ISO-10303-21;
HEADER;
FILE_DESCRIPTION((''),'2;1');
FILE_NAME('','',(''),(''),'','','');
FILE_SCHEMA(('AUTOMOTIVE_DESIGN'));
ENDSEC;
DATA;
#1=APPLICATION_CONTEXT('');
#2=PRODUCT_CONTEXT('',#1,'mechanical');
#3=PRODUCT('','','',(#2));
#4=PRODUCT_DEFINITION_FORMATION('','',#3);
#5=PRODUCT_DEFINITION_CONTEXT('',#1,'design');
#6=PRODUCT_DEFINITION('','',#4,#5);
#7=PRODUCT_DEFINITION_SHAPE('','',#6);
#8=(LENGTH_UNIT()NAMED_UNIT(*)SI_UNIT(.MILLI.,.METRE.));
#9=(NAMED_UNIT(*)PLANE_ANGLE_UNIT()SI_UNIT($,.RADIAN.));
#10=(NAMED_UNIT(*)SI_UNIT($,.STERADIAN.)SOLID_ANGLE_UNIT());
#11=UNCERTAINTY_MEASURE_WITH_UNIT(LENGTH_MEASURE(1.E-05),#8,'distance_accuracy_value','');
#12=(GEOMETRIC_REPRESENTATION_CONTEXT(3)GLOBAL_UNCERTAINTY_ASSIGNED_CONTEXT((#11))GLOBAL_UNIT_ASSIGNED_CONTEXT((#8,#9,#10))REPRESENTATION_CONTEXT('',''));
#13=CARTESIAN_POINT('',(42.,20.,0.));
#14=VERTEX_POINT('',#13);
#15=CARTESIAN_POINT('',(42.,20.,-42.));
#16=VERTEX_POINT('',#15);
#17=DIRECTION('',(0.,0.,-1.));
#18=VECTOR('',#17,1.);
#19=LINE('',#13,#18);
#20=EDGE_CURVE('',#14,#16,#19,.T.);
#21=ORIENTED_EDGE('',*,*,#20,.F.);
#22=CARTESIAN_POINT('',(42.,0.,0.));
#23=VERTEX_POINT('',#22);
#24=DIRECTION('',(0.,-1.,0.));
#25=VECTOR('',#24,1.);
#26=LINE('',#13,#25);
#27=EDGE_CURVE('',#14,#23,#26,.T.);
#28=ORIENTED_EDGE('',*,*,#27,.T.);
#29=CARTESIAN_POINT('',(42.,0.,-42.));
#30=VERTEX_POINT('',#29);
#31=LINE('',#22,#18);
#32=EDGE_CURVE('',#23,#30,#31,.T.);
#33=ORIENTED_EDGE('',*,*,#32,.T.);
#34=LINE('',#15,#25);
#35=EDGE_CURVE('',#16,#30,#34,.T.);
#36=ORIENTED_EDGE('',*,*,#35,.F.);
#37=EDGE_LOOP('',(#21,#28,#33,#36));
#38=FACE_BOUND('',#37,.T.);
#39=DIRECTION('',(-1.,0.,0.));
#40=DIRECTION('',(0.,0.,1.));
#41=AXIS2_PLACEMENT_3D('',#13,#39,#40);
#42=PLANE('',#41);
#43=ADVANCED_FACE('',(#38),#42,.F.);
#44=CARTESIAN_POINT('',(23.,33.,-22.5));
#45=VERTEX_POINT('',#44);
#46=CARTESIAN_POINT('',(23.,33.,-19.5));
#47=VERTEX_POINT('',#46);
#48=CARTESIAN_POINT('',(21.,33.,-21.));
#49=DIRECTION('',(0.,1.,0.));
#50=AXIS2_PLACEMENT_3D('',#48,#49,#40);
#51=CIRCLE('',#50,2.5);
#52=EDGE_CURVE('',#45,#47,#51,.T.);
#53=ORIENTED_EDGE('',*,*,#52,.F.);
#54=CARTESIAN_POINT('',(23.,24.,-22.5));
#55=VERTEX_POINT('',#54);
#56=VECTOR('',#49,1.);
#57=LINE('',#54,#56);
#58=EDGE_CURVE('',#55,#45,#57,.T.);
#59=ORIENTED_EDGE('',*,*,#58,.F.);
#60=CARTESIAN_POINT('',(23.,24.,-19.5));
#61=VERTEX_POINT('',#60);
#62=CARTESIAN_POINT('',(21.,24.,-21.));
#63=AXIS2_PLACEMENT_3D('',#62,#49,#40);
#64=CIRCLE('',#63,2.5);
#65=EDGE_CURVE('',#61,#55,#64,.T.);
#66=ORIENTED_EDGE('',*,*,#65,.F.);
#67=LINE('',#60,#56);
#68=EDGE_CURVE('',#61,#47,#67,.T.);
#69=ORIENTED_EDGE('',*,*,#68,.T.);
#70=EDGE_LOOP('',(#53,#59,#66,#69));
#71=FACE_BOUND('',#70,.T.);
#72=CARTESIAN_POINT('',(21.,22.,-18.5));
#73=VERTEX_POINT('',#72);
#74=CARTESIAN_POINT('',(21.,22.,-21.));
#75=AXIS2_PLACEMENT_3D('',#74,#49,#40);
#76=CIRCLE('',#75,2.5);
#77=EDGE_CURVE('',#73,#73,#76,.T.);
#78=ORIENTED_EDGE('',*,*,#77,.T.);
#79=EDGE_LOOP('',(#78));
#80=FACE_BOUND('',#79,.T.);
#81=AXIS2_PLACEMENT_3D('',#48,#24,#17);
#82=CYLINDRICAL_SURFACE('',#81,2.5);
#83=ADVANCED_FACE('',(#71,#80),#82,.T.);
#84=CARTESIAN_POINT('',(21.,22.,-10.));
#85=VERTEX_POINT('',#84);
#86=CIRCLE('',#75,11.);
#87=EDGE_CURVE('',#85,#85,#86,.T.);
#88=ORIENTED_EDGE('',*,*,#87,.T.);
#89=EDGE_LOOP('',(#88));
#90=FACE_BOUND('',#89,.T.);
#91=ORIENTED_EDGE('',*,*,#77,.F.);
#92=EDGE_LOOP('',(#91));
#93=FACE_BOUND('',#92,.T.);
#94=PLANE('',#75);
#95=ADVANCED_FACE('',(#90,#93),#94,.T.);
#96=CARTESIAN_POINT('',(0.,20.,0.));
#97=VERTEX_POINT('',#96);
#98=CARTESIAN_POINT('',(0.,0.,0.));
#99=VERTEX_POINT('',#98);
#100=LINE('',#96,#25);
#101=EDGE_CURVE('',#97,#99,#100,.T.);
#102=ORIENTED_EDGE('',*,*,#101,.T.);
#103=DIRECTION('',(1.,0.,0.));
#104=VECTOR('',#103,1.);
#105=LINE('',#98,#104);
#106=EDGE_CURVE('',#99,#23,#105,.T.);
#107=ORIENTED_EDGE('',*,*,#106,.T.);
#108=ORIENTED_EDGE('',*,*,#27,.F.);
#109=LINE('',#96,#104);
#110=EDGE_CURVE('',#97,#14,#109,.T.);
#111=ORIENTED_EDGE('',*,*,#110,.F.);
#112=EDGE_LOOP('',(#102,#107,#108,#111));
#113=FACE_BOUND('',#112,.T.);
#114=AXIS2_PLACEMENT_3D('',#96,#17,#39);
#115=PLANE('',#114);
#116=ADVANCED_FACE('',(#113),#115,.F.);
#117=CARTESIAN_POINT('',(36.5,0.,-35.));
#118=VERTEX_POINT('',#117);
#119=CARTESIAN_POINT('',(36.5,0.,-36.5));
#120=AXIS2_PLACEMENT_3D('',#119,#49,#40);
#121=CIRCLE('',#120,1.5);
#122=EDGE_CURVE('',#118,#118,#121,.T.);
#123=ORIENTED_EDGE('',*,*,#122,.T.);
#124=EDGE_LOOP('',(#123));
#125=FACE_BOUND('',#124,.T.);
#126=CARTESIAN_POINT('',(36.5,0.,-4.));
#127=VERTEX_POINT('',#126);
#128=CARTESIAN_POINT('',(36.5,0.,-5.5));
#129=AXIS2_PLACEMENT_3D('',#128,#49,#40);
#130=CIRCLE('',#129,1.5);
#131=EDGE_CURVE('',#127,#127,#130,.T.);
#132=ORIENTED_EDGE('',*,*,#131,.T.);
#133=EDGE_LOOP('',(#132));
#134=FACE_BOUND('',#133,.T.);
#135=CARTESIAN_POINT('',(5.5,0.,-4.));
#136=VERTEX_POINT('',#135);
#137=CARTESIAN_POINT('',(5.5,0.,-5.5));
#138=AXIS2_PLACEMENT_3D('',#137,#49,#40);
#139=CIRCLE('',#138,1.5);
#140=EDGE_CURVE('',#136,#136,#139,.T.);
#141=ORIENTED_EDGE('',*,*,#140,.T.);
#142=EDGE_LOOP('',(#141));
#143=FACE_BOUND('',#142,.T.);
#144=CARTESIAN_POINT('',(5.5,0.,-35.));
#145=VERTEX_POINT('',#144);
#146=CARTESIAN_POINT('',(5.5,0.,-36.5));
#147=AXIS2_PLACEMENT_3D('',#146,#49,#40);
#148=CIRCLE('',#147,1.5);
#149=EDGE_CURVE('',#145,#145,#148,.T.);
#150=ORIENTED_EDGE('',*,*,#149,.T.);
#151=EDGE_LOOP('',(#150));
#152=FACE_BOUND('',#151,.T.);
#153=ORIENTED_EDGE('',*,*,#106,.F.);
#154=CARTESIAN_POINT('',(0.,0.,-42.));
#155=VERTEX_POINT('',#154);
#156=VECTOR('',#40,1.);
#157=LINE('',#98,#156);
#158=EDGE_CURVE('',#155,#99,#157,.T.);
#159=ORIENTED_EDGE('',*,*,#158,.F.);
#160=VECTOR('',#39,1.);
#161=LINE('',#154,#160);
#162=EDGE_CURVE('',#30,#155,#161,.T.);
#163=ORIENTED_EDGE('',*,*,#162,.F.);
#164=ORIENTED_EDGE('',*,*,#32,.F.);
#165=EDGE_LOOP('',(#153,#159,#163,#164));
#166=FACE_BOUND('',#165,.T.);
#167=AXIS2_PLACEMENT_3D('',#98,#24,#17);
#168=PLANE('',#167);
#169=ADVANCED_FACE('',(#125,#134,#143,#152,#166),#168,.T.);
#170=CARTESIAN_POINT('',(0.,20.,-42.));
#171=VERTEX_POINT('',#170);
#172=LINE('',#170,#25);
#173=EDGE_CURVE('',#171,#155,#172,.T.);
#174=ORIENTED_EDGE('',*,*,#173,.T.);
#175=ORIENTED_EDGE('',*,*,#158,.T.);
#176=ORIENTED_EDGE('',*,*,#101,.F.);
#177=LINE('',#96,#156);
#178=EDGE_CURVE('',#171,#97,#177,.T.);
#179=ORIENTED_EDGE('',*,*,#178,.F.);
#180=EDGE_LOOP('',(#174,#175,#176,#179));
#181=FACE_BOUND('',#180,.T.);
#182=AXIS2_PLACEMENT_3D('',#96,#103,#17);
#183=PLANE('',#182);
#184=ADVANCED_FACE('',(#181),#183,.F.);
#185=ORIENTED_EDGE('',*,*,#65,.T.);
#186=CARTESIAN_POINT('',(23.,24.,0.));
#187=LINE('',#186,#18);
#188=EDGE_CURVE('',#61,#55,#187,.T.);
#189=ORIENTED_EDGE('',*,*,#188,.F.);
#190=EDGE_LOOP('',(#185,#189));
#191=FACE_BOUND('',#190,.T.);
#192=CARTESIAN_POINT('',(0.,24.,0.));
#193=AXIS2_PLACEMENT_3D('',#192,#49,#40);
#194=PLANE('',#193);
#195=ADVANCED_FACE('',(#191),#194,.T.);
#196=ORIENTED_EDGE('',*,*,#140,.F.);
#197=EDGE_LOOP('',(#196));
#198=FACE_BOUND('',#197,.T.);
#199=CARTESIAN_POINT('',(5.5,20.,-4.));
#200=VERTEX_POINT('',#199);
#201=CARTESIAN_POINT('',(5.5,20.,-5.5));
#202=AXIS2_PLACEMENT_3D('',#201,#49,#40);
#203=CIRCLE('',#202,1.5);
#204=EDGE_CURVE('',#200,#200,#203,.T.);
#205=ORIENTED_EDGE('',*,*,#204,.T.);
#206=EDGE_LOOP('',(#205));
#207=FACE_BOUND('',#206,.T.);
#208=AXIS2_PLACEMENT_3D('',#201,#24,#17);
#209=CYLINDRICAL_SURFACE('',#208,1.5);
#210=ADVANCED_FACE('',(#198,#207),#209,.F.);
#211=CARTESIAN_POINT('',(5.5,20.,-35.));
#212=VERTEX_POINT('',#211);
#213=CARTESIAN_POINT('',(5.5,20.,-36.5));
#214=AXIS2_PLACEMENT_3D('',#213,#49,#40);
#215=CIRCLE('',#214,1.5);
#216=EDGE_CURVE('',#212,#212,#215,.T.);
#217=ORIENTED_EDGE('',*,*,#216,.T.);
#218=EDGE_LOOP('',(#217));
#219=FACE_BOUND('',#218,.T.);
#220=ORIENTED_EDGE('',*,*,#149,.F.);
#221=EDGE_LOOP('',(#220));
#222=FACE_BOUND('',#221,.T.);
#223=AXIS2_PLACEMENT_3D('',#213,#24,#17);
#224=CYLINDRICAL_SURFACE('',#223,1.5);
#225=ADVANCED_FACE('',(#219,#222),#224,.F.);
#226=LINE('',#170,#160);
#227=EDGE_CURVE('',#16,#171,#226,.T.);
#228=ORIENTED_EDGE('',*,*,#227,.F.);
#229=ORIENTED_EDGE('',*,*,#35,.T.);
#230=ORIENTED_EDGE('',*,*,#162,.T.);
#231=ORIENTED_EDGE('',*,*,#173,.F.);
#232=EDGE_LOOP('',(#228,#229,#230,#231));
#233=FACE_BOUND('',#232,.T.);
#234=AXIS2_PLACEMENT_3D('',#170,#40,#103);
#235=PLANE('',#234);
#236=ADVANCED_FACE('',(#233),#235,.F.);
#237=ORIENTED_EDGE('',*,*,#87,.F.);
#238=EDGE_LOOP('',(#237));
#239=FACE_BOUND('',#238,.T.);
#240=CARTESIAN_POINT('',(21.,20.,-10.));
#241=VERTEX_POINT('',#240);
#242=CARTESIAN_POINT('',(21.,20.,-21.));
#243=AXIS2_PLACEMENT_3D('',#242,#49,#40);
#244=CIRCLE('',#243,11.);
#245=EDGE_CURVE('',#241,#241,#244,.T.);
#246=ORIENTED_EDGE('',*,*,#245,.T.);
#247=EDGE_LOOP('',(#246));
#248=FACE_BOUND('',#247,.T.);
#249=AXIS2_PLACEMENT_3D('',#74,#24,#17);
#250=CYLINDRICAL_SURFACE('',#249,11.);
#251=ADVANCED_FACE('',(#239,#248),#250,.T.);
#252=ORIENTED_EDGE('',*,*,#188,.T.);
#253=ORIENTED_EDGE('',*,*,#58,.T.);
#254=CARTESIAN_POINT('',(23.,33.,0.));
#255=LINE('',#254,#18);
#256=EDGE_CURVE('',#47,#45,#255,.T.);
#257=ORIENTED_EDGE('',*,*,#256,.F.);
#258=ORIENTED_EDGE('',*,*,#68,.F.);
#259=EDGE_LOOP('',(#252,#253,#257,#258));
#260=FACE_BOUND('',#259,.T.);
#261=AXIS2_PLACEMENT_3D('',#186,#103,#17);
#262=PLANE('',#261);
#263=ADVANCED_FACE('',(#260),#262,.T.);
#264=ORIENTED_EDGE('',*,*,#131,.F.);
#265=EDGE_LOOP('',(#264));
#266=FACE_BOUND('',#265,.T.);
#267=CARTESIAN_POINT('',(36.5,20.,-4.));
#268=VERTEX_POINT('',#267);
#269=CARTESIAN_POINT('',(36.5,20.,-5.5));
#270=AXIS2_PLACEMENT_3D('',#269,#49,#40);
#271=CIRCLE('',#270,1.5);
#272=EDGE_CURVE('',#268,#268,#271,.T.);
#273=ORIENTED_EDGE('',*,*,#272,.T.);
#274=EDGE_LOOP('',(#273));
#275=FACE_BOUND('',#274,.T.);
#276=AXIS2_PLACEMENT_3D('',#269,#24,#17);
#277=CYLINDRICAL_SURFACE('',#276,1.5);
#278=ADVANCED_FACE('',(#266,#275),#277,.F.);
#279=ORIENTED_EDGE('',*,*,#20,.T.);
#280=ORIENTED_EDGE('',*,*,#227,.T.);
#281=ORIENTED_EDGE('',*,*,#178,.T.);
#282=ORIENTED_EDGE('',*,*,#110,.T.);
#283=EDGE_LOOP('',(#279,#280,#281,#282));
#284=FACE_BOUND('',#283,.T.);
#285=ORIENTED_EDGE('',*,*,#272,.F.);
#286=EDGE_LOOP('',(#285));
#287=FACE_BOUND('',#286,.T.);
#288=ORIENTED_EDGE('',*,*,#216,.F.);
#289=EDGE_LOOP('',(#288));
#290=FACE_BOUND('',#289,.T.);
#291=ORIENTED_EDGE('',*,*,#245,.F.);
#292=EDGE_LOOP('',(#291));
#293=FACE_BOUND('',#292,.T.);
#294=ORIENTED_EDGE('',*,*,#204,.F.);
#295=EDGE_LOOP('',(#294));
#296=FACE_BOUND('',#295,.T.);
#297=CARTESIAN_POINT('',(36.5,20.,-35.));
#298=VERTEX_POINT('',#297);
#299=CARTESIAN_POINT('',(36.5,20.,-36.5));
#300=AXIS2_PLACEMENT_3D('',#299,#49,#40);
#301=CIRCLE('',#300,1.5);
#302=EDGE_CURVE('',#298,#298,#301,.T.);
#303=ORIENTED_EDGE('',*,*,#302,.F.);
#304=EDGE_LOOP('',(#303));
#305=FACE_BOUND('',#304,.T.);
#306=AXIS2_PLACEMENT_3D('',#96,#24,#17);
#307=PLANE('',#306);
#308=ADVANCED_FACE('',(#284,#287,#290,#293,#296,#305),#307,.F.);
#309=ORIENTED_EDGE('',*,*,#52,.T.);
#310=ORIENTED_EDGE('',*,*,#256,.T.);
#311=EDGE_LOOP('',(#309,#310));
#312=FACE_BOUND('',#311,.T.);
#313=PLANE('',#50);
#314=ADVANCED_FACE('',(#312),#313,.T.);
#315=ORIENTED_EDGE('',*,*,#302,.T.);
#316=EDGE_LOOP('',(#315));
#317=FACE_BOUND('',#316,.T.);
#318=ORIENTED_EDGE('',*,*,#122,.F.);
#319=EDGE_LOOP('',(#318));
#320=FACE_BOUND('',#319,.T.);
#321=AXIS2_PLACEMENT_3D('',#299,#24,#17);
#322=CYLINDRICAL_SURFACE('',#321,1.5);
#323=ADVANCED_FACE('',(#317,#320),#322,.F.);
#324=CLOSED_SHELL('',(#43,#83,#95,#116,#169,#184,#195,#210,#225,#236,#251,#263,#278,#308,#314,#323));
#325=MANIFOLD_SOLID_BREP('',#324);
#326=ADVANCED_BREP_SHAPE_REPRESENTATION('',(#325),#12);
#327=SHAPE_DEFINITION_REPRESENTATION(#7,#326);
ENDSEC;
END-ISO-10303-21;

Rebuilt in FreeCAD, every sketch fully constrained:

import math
import FreeCAD as App
import Part
import Sketcher

doc = App.newDocument("Part")
params = doc.addObject("Spreadsheet::Sheet", "Params")
for row, (alias, value) in enumerate([
    ("sketch1_diameter", "3 mm"),
    ("sketch1_width", "42 mm"),
    ("pad1_length", "20 mm"),
    ("sketch2_diameter", "22 mm"),
    ("pad2_length", "2 mm"),
    ("sketch3_diameter", "5 mm"),
    ("pad3_length", "11 mm"),
    ("sketch4_radius", "2.5 mm"),
    ("sketch4_height", "3 mm"),
    ("pocket1_length", "9 mm"),
], start=1):
    params.set(f"A{row}", alias)
    params.set(f"B{row}", "=" + value)
    params.setAlias(f"B{row}", alias)

body = doc.addObject("PartDesign::Body", "Body")

# Sketch on XZ plane
sketch1 = body.newObject("Sketcher::SketchObject", "Sketch")
sketch1.AttachmentSupport = (doc.getObject("XZ_Plane"), [""])
sketch1.MapMode = "FlatFace"
sketch1.addGeometry(Part.LineSegment(App.Vector(0, -42, 0), App.Vector(0, 0, 0)), False)
sketch1.addGeometry(Part.LineSegment(App.Vector(0, 0, 0), App.Vector(42, 0, 0)), False)
sketch1.addGeometry(Part.LineSegment(App.Vector(42, 0, 0), App.Vector(42, -42, 0)), False)
sketch1.addGeometry(Part.LineSegment(App.Vector(42, -42, 0), App.Vector(0, -42, 0)), False)
sketch1.addGeometry(Part.Circle(App.Vector(5.5, -5.5, 0), App.Vector(0, 0, 1), 1.5), False)
sketch1.addGeometry(Part.Circle(App.Vector(36.5, -5.5, 0), App.Vector(0, 0, 1), 1.5), False)
sketch1.addGeometry(Part.Circle(App.Vector(5.5, -36.5, 0), App.Vector(0, 0, 1), 1.5), False)
sketch1.addGeometry(Part.Circle(App.Vector(36.5, -36.5, 0), App.Vector(0, 0, 1), 1.5), False)
sketch1.addConstraint(Sketcher.Constraint("Coincident", 0, 2, 1, 1))
sketch1.addConstraint(Sketcher.Constraint("Coincident", 1, 2, 2, 1))
sketch1.addConstraint(Sketcher.Constraint("Coincident", 2, 2, 3, 1))
sketch1.addConstraint(Sketcher.Constraint("Coincident", 3, 2, 0, 1))
sketch1.addConstraint(Sketcher.Constraint("Vertical", 0))
sketch1.addConstraint(Sketcher.Constraint("Horizontal", 1))
sketch1.addConstraint(Sketcher.Constraint("Vertical", 2))
sketch1.addConstraint(Sketcher.Constraint("Horizontal", 3))
sketch1.addConstraint(Sketcher.Constraint("Coincident", 0, 2, -1, 1))
sketch1.addConstraint(Sketcher.Constraint("Equal", 4, 5))
sketch1.addConstraint(Sketcher.Constraint("Equal", 5, 6))
sketch1.addConstraint(Sketcher.Constraint("Equal", 6, 7))
sketch1.addConstraint(Sketcher.Constraint("Horizontal", 4, 3, 5, 3))
sketch1.addConstraint(Sketcher.Constraint("Horizontal", 6, 3, 7, 3))
sketch1.addConstraint(Sketcher.Constraint("Vertical", 4, 3, 6, 3))
sketch1.addConstraint(Sketcher.Constraint("Vertical", 5, 3, 7, 3))
sketch1.addConstraint(Sketcher.Constraint("Equal", 3, 0))
sketch1.addConstraint(Sketcher.Constraint("Diameter", 4, 3.0))
sketch1.addConstraint(Sketcher.Constraint("DistanceX", 1, 1, 1, 2, 42.0))
sketch1.addConstraint(Sketcher.Constraint("DistanceX", 4, 3, 5, 3, 31.0))
sketch1.addConstraint(Sketcher.Constraint("DistanceY", 6, 3, 4, 3, 31.0))
sketch1.addConstraint(Sketcher.Constraint("DistanceX", -1, 1, 4, 3, 5.5))
sketch1.addConstraint(Sketcher.Constraint("DistanceY", 4, 3, -1, 1, 5.5))
sketch1.setExpression("Constraints[17]", "Params.sketch1_diameter")
sketch1.setExpression("Constraints[18]", "Params.sketch1_width")
pad1 = body.newObject("PartDesign::Pad", "Pad")
pad1.Profile = sketch1
pad1.setExpression("Length", "Params.pad1_length")
pad1.Reversed = True

# Sketch on XZ plane
sketch2 = body.newObject("Sketcher::SketchObject", "Sketch001")
sketch2.AttachmentSupport = (doc.getObject("XZ_Plane"), [""])
sketch2.MapMode = "FlatFace"
sketch2.AttachmentOffset = App.Placement(App.Vector(0, 0, -20), App.Rotation())
sketch2.addGeometry(Part.Circle(App.Vector(21, -21, 0), App.Vector(0, 0, 1), 11), False)
sketch2.addConstraint(Sketcher.Constraint("Diameter", 0, 22.0))
sketch2.addConstraint(Sketcher.Constraint("DistanceX", -1, 1, 0, 3, 21.0))
sketch2.addConstraint(Sketcher.Constraint("DistanceY", 0, 3, -1, 1, 21.0))
sketch2.setExpression("Constraints[0]", "Params.sketch2_diameter")
pad2 = body.newObject("PartDesign::Pad", "Pad001")
pad2.Profile = sketch2
pad2.setExpression("Length", "Params.pad2_length")
pad2.Reversed = True

# Sketch on XZ plane
sketch3 = body.newObject("Sketcher::SketchObject", "Sketch002")
sketch3.AttachmentSupport = (doc.getObject("XZ_Plane"), [""])
sketch3.MapMode = "FlatFace"
sketch3.AttachmentOffset = App.Placement(App.Vector(0, 0, -22), App.Rotation())
sketch3.addGeometry(Part.Circle(App.Vector(21, -21, 0), App.Vector(0, 0, 1), 2.5), False)
sketch3.addConstraint(Sketcher.Constraint("Diameter", 0, 5.0))
sketch3.addConstraint(Sketcher.Constraint("DistanceX", -1, 1, 0, 3, 21.0))
sketch3.addConstraint(Sketcher.Constraint("DistanceY", 0, 3, -1, 1, 21.0))
sketch3.setExpression("Constraints[0]", "Params.sketch3_diameter")
pad3 = body.newObject("PartDesign::Pad", "Pad002")
pad3.Profile = sketch3
pad3.setExpression("Length", "Params.pad3_length")
pad3.Reversed = True

# Sketch on XZ plane
sketch4 = body.newObject("Sketcher::SketchObject", "Sketch003")
sketch4.AttachmentSupport = (doc.getObject("XZ_Plane"), [""])
sketch4.MapMode = "FlatFace"
sketch4.AttachmentOffset = App.Placement(App.Vector(0, 0, -24), App.Rotation())
sketch4.addGeometry(Part.LineSegment(App.Vector(23, -22.5, 0), App.Vector(23, -19.5, 0)), False)
sketch4.addGeometry(Part.ArcOfCircle(Part.Circle(App.Vector(21, -21, 0), App.Vector(0, 0, 1), 2.5), math.radians(0), math.radians(37)), False)
sketch4.addGeometry(Part.ArcOfCircle(Part.Circle(App.Vector(21, -21, 0), App.Vector(0, 0, 1), 2.5), math.radians(-37), math.radians(0)), False)
sketch4.addConstraint(Sketcher.Constraint("Coincident", 0, 2, 1, 2))
sketch4.addConstraint(Sketcher.Constraint("Tangent", 1, 1, 2, 2))
sketch4.addConstraint(Sketcher.Constraint("Coincident", 2, 1, 0, 1))
sketch4.addConstraint(Sketcher.Constraint("Vertical", 0))
sketch4.addConstraint(Sketcher.Constraint("Equal", 1, 2))
sketch4.addConstraint(Sketcher.Constraint("Horizontal", 2, 3, 1, 1))
sketch4.addConstraint(Sketcher.Constraint("Radius", 1, 2.5))
sketch4.addConstraint(Sketcher.Constraint("DistanceY", 0, 1, 0, 2, 3.0))
sketch4.addConstraint(Sketcher.Constraint("DistanceX", -1, 1, 1, 3, 21.0))
sketch4.addConstraint(Sketcher.Constraint("DistanceY", 1, 3, -1, 1, 21.0))
sketch4.setExpression("Constraints[6]", "Params.sketch4_radius")
sketch4.setExpression("Constraints[7]", "Params.sketch4_height")
pocket1 = body.newObject("PartDesign::Pocket", "Pocket")
pocket1.Profile = sketch4
pocket1.setExpression("Length", "Params.pocket1_length")

doc.recompute()
